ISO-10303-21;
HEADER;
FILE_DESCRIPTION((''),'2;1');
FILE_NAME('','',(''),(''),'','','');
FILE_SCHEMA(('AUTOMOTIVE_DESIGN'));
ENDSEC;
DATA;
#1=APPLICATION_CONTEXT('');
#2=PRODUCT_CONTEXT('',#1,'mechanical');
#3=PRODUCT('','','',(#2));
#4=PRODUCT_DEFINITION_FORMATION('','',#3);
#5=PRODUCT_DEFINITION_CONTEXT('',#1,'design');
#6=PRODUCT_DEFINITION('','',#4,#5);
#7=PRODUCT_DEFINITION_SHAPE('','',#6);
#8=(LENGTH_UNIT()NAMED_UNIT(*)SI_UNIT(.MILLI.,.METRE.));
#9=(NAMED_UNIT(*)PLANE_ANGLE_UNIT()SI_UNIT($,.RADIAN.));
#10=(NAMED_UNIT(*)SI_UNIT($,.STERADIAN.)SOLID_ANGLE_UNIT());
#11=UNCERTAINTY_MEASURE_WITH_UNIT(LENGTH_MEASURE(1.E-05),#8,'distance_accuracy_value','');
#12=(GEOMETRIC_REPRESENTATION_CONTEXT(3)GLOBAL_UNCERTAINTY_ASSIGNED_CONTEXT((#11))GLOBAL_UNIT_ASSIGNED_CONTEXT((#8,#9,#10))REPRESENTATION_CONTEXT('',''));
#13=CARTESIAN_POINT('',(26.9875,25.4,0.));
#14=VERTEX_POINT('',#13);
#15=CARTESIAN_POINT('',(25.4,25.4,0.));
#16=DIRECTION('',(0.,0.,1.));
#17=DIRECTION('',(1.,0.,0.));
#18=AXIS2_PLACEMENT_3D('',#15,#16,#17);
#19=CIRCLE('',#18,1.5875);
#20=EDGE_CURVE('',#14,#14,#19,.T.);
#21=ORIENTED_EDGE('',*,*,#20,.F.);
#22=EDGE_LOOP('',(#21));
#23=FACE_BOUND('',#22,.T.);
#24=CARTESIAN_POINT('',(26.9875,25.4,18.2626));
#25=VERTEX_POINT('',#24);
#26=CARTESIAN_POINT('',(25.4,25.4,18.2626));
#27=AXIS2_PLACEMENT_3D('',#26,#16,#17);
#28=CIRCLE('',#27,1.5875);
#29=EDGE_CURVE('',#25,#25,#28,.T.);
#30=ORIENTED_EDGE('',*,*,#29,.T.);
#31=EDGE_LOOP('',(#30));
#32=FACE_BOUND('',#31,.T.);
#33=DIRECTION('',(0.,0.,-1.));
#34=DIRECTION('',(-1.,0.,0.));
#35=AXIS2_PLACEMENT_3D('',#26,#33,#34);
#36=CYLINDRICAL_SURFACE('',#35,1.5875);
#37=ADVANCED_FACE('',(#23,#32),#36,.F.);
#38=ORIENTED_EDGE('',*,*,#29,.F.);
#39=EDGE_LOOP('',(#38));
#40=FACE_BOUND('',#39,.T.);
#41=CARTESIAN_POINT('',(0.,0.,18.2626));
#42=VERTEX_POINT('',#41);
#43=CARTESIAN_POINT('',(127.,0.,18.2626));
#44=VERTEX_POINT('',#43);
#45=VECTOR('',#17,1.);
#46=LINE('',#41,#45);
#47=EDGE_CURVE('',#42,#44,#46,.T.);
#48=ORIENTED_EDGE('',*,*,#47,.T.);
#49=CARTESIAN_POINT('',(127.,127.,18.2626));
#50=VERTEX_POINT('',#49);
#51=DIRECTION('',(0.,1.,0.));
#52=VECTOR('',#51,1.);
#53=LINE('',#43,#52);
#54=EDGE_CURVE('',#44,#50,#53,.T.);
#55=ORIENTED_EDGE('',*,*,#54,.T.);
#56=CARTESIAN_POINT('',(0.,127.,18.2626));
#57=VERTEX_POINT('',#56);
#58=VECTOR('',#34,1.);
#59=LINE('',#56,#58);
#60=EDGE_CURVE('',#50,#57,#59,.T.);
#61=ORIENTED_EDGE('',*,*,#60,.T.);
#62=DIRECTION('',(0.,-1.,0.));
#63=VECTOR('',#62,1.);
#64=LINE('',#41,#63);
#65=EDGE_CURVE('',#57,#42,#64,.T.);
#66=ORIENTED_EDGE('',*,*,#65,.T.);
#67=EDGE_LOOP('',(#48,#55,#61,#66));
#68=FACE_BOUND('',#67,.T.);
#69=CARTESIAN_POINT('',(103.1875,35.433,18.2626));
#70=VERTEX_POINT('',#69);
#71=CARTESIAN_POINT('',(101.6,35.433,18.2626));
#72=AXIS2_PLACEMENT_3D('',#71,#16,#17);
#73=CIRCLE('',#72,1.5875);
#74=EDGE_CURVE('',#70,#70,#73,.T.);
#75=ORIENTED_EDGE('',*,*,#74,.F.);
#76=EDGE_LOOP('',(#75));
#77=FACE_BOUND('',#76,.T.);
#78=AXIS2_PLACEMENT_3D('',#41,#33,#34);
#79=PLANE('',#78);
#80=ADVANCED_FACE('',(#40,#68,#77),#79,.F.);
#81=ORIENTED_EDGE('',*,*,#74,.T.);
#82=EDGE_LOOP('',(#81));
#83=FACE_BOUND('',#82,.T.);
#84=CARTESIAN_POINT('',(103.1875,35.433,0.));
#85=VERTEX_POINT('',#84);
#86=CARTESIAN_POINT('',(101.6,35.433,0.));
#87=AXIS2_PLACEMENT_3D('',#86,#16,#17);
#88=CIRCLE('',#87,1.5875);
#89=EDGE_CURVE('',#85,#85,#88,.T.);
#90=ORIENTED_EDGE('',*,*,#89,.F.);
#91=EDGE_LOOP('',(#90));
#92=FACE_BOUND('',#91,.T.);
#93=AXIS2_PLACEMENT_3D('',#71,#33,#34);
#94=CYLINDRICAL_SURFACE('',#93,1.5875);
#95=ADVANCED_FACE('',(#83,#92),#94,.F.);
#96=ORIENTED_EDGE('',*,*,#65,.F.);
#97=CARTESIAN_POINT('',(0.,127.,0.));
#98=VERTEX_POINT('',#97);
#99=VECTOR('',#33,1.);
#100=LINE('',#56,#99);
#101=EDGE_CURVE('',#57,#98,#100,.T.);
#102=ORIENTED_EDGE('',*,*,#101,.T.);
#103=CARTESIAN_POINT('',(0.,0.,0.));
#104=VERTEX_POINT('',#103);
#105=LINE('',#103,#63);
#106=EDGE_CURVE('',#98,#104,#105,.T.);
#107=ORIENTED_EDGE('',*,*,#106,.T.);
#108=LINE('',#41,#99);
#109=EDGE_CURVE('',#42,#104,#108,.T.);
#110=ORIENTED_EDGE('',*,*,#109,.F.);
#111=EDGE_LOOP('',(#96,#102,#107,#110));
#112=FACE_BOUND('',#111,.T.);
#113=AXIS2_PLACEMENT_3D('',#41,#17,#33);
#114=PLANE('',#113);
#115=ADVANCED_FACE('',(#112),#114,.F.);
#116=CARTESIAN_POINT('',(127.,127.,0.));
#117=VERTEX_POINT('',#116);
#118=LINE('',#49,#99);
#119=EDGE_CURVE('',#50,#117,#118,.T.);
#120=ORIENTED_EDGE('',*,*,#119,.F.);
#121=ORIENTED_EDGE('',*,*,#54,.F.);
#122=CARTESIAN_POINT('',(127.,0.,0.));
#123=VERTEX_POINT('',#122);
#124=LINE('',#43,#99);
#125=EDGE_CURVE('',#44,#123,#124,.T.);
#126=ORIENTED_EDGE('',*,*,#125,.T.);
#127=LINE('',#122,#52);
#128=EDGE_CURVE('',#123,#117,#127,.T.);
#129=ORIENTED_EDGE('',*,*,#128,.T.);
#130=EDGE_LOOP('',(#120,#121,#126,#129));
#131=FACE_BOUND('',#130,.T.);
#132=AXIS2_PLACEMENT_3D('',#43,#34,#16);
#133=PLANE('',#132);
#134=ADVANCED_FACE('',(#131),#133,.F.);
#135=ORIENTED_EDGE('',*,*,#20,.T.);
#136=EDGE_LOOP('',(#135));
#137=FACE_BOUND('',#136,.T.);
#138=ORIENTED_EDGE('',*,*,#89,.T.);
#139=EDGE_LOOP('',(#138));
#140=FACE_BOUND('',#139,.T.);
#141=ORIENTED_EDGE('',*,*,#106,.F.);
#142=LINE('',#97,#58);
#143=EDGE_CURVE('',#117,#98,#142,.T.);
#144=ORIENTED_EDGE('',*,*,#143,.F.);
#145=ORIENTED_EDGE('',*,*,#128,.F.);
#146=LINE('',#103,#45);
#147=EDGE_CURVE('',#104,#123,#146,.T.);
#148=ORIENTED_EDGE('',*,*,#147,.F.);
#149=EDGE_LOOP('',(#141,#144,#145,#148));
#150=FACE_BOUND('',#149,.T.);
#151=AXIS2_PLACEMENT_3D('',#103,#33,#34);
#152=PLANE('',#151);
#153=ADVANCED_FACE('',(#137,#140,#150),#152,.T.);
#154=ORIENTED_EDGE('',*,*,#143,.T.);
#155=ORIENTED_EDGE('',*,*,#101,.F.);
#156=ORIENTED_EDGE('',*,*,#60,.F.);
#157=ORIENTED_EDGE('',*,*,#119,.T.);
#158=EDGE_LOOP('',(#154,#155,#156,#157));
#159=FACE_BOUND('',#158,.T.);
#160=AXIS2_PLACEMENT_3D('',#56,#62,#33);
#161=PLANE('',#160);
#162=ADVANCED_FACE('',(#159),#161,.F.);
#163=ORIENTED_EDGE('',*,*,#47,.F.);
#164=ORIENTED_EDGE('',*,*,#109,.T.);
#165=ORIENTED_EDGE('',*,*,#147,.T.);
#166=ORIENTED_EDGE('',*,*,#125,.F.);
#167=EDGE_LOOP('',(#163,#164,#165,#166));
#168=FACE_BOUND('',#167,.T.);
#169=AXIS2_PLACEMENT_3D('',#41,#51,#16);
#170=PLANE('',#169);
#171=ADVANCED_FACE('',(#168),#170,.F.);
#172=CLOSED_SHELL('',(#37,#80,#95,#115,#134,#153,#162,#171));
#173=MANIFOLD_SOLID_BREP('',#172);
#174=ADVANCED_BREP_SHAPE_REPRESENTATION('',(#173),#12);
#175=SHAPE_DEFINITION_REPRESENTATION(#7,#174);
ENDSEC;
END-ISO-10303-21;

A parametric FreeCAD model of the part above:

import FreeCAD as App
import Part
import Sketcher
Q = App.Units.Quantity

doc = App.newDocument("Part")
body = doc.addObject("PartDesign::Body", "Body")

sketch1 = body.newObject("Sketcher::SketchObject", "Sketch")
sketch1.AttachmentSupport = (doc.getObject("XY_Plane"), [""])
sketch1.MapMode = "FlatFace"
sketch1.addGeometry(Part.LineSegment(App.Vector(0, 127, 0), App.Vector(0, 0, 0)), False)
sketch1.addGeometry(Part.LineSegment(App.Vector(0, 0, 0), App.Vector(127, 0, 0)), False)
sketch1.addGeometry(Part.LineSegment(App.Vector(127, 0, 0), App.Vector(127, 127, 0)), False)
sketch1.addGeometry(Part.LineSegment(App.Vector(127, 127, 0), App.Vector(0, 127, 0)), False)
sketch1.addGeometry(Part.Circle(App.Vector(25.4, 25.4, 0), App.Vector(0, 0, 1), 1.5875), False)
sketch1.addGeometry(Part.Circle(App.Vector(101.6, 35.433, 0), App.Vector(0, 0, 1), 1.5875), False)
sketch1.addConstraint(Sketcher.Constraint("Coincident", 0, 2, 1, 1))
sketch1.addConstraint(Sketcher.Constraint("Coincident", 1, 2, 2, 1))
sketch1.addConstraint(Sketcher.Constraint("Coincident", 2, 2, 3, 1))
sketch1.addConstraint(Sketcher.Constraint("Coincident", 3, 2, 0, 1))
sketch1.addConstraint(Sketcher.Constraint("Vertical", 0))
sketch1.addConstraint(Sketcher.Constraint("Horizontal", 1))
sketch1.addConstraint(Sketcher.Constraint("Vertical", 2))
sketch1.addConstraint(Sketcher.Constraint("Horizontal", 3))
sketch1.addConstraint(Sketcher.Constraint("Coincident", 0, 2, -1, 1))
sketch1.addConstraint(Sketcher.Constraint("Equal", 4, 5))
sketch1.addConstraint(Sketcher.Constraint("Equal", 3, 0))
sketch1.addConstraint(Sketcher.Constraint("DistanceX", 1, 1, 1, 2, Q("5 in")))
sketch1.addConstraint(Sketcher.Constraint("Diameter", 4, Q("0.125 in")))
sketch1.addConstraint(Sketcher.Constraint("DistanceX", -1, 1, 4, 3, Q("1 in")))
sketch1.addConstraint(Sketcher.Constraint("DistanceY", -1, 1, 4, 3, Q("1 in")))
sketch1.addConstraint(Sketcher.Constraint("DistanceX", -1, 1, 5, 3, Q("4 in")))
sketch1.addConstraint(Sketcher.Constraint("DistanceY", -1, 1, 5, 3, Q("1.395 in")))
pad1 = body.newObject("PartDesign::Pad", "Pad")
pad1.Profile = sketch1
pad1.Length = Q("0.719 in")

doc.recompute()
